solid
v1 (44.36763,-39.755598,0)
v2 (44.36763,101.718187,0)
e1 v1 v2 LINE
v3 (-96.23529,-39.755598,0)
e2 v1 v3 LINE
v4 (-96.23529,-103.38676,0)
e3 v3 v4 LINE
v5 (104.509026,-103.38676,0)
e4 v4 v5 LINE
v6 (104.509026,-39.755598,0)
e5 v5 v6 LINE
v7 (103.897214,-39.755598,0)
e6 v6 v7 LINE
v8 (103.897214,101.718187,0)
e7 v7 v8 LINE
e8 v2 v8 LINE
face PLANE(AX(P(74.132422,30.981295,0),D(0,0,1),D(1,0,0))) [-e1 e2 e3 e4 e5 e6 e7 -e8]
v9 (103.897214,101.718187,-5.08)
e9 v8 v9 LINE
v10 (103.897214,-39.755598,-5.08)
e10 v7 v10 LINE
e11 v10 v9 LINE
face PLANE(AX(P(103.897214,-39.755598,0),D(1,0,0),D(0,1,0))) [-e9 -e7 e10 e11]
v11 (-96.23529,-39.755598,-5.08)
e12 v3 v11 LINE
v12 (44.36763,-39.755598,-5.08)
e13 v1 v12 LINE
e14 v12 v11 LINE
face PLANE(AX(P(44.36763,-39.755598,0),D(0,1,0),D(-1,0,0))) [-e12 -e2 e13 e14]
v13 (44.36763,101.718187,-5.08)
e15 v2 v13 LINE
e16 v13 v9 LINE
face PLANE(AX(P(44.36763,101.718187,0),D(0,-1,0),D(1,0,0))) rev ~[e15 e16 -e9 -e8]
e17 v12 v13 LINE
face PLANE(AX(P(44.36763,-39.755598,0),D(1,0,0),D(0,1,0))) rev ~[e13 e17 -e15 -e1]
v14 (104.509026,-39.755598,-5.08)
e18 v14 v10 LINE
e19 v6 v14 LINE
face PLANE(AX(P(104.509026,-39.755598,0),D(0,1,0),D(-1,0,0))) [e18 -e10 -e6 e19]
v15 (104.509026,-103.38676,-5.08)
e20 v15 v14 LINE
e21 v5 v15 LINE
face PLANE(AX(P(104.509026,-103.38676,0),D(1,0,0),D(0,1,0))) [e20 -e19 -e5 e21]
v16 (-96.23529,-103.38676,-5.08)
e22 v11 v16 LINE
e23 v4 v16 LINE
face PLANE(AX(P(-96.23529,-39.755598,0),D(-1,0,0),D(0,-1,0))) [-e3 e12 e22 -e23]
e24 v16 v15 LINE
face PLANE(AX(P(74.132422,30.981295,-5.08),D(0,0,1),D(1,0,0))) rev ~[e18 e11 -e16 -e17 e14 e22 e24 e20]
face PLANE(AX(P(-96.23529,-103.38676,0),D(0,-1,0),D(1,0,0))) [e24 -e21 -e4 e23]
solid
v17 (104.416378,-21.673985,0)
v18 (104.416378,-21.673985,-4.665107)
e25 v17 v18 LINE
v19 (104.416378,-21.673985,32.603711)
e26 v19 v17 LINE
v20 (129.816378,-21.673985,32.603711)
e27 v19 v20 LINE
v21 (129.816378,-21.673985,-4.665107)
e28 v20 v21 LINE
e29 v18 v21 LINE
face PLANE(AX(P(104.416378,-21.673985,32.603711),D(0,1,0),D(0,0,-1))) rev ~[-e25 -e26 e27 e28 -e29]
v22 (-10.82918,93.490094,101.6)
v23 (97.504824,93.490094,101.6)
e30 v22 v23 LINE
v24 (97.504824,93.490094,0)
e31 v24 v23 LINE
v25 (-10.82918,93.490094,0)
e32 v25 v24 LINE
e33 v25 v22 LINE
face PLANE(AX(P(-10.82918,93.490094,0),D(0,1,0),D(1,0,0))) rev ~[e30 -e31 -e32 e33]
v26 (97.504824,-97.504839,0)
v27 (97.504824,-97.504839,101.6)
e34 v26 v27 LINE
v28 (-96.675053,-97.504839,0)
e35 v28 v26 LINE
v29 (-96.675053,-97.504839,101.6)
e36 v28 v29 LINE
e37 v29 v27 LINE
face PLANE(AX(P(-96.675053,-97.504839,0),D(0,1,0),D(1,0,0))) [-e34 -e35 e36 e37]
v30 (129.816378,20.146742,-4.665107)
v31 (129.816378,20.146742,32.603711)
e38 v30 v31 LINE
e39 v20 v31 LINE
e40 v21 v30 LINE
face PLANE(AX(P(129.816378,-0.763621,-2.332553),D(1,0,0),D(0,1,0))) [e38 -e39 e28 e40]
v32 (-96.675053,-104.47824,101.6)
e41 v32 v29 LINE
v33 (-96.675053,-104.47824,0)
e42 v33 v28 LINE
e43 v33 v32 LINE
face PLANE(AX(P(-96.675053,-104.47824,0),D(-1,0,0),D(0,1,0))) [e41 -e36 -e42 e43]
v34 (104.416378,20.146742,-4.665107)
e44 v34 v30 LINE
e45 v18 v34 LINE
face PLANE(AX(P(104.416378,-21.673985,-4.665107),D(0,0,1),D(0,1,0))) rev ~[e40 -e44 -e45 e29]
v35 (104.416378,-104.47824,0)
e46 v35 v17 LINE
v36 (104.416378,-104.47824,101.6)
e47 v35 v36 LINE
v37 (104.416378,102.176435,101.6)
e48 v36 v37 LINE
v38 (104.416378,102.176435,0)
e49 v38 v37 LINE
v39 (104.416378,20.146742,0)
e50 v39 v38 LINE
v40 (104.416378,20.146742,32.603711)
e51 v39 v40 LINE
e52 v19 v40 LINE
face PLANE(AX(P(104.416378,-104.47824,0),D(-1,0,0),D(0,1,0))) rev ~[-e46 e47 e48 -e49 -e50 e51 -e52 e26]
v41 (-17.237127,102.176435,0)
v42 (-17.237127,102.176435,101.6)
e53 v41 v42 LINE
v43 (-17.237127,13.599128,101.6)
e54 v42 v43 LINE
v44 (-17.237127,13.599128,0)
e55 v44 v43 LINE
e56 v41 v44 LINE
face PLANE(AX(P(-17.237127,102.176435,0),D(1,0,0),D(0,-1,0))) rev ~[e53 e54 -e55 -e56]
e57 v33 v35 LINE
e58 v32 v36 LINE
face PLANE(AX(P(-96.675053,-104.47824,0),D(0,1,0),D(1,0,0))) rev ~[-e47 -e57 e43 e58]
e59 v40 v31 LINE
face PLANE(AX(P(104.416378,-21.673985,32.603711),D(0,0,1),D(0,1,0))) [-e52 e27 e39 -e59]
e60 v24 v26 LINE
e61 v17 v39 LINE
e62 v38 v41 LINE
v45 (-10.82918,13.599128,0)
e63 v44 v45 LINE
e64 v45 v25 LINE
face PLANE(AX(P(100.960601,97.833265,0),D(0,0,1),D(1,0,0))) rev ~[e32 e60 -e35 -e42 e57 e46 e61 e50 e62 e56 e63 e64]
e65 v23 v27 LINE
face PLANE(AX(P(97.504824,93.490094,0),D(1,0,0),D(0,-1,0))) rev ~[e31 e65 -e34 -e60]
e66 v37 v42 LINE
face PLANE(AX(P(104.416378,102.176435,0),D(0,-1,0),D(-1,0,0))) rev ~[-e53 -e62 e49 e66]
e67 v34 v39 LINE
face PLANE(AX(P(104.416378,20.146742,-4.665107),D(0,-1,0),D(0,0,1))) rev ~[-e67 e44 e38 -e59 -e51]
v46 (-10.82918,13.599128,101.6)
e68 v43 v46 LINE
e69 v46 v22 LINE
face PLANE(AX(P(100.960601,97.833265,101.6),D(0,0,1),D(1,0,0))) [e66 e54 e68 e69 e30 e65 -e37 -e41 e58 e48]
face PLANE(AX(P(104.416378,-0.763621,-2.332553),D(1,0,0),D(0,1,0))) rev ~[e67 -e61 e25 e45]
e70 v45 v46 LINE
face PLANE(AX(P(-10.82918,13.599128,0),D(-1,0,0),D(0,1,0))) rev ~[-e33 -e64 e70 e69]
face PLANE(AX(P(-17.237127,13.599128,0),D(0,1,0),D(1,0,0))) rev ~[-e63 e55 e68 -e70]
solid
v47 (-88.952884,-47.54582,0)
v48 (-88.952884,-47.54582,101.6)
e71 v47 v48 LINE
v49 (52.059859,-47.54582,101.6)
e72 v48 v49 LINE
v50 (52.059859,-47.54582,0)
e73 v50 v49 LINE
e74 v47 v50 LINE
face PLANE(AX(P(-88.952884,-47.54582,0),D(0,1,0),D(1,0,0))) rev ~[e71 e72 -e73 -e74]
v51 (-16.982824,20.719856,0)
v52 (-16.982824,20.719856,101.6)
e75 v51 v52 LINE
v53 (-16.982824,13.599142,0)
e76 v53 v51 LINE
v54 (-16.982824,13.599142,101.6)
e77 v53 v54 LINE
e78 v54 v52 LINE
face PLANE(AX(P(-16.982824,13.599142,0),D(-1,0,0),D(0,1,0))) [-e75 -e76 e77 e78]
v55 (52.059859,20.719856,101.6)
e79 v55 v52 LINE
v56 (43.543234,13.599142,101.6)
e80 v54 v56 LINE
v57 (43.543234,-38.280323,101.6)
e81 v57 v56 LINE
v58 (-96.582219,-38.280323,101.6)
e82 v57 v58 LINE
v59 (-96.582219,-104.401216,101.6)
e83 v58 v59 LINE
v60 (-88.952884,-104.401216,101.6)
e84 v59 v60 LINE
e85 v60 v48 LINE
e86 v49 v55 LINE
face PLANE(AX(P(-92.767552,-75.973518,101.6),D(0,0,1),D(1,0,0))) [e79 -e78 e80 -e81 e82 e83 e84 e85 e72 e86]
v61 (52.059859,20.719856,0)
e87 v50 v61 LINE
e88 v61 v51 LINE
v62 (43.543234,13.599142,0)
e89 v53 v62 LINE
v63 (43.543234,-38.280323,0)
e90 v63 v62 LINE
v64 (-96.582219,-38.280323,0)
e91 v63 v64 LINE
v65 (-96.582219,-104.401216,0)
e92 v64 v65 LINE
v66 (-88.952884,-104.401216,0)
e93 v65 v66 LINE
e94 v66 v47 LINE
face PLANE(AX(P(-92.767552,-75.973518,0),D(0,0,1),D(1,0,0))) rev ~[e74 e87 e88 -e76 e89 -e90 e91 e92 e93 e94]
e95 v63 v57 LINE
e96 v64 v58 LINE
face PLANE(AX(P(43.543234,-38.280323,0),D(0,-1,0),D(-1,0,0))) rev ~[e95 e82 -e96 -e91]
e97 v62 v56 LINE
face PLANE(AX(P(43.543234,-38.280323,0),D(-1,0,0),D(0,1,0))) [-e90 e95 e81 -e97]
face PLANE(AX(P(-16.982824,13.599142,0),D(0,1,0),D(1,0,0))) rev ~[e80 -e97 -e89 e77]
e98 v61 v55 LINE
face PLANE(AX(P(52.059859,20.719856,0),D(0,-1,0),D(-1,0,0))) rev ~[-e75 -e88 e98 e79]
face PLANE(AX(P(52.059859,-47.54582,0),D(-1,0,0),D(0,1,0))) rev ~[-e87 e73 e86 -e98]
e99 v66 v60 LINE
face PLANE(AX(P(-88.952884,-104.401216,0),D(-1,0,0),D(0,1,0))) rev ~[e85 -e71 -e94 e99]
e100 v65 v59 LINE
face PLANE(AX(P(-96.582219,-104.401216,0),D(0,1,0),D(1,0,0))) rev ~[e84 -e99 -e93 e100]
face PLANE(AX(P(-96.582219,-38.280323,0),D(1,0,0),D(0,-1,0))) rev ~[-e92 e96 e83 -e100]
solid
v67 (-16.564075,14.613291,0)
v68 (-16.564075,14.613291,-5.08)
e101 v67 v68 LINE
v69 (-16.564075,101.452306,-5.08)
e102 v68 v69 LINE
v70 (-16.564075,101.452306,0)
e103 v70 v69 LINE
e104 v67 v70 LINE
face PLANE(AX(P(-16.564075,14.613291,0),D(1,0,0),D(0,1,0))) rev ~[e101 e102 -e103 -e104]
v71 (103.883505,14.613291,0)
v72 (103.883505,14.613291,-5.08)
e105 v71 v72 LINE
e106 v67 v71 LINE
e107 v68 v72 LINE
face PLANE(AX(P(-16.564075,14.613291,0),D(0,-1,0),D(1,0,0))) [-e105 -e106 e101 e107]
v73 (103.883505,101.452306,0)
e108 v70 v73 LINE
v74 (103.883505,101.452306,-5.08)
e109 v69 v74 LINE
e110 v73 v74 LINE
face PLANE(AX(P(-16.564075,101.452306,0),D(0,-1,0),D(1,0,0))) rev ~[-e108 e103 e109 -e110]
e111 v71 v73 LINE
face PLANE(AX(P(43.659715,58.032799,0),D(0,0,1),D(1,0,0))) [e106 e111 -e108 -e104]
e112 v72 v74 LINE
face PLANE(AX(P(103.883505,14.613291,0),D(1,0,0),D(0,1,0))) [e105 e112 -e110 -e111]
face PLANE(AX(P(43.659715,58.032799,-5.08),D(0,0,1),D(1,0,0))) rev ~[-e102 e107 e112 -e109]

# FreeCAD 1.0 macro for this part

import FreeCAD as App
import Part
import Sketcher
from FreeCAD import Vector
Q = App.Units.Quantity

doc = App.newDocument("Part")
params = doc.addObject("Spreadsheet::Sheet", "Params")
for row, (alias, value) in enumerate([
    ("pad1_length", "4 in"),
    ("pad2_length", "1 in"),
    ("pad3_length", "4 in"),
    ("pad4_length", "0.2 in"),
    ("pad5_length", "0.2 in"),
], start=1):
    params.set(f"A{row}", alias)
    params.set(f"B{row}", "=" + value)
    params.setAlias(f"B{row}", alias)

body = doc.addObject("PartDesign::Body", "Body")

# Sketch on XY plane
sketch1 = body.newObject("Sketcher::SketchObject", "Sketch")
sketch1.AttachmentSupport = (doc.getObject("XY_Plane"), [""])
sketch1.MapMode = "FlatFace"
sketch1.addGeometry(Part.LineSegment(Vector(104, -104, 0), Vector(104, 102, 0)), False)
sketch1.addGeometry(Part.LineSegment(Vector(104, 102, 0), Vector(-17, 102, 0)), False)
sketch1.addGeometry(Part.LineSegment(Vector(-17, 102, 0), Vector(-17, 14, 0)), False)
sketch1.addGeometry(Part.LineSegment(Vector(-17, 14, 0), Vector(-11, 14, 0)), False)
sketch1.addGeometry(Part.LineSegment(Vector(-11, 14, 0), Vector(-11, 93, 0)), False)
sketch1.addGeometry(Part.LineSegment(Vector(-11, 93, 0), Vector(98, 93, 0)), False)
sketch1.addGeometry(Part.LineSegment(Vector(98, 93, 0), Vector(98, -98, 0)), False)
sketch1.addGeometry(Part.LineSegment(Vector(98, -98, 0), Vector(-97, -98, 0)), False)
sketch1.addGeometry(Part.LineSegment(Vector(-97, -98, 0), Vector(-97, -104, 0)), False)
sketch1.addGeometry(Part.LineSegment(Vector(-97, -104, 0), Vector(104, -104, 0)), False)
sketch1.addConstraint(Sketcher.Constraint("Coincident", 0, 2, 1, 1))
sketch1.addConstraint(Sketcher.Constraint("Coincident", 1, 2, 2, 1))
sketch1.addConstraint(Sketcher.Constraint("Coincident", 2, 2, 3, 1))
sketch1.addConstraint(Sketcher.Constraint("Coincident", 3, 2, 4, 1))
sketch1.addConstraint(Sketcher.Constraint("Coincident", 4, 2, 5, 1))
sketch1.addConstraint(Sketcher.Constraint("Coincident", 5, 2, 6, 1))
sketch1.addConstraint(Sketcher.Constraint("Coincident", 6, 2, 7, 1))
sketch1.addConstraint(Sketcher.Constraint("Coincident", 7, 2, 8, 1))
sketch1.addConstraint(Sketcher.Constraint("Coincident", 8, 2, 9, 1))
sketch1.addConstraint(Sketcher.Constraint("Coincident", 9, 2, 0, 1))
sketch1.addConstraint(Sketcher.Constraint("Vertical", 0))
sketch1.addConstraint(Sketcher.Constraint("Horizontal", 1))
sketch1.addConstraint(Sketcher.Constraint("Vertical", 2))
sketch1.addConstraint(Sketcher.Constraint("Horizontal", 3))
sketch1.addConstraint(Sketcher.Constraint("Vertical", 4))
sketch1.addConstraint(Sketcher.Constraint("Horizontal", 5))
sketch1.addConstraint(Sketcher.Constraint("Vertical", 6))
sketch1.addConstraint(Sketcher.Constraint("Horizontal", 7))
sketch1.addConstraint(Sketcher.Constraint("Vertical", 8))
sketch1.addConstraint(Sketcher.Constraint("Horizontal", 9))
sketch1.addConstraint(Sketcher.Constraint("DistanceY", 8, 2, 8, 1, Q("6.973401 mm")))
sketch1.addConstraint(Sketcher.Constraint("DistanceX", 9, 1, 9, 2, Q("201.091431 mm")))
sketch1.addConstraint(Sketcher.Constraint("DistanceX", 1, 2, 1, 1, Q("121.653505 mm")))
sketch1.addConstraint(Sketcher.Constraint("DistanceX", 3, 1, 3, 2, Q("6.407946 mm")))
sketch1.addConstraint(Sketcher.Constraint("DistanceX", 5, 1, 5, 2, Q("108.334005 mm")))
sketch1.addConstraint(Sketcher.Constraint("DistanceY", 0, 1, 0, 2, Q("206.654675 mm")))
sketch1.addConstraint(Sketcher.Constraint("DistanceY", 2, 2, 2, 1, Q("88.577308 mm")))
sketch1.addConstraint(Sketcher.Constraint("DistanceY", 4, 1, 4, 2, Q("79.890966 mm")))
sketch1.addConstraint(Sketcher.Constraint("DistanceX", 3, 2, -1, 1, Q("10.82918 mm")))
sketch1.addConstraint(Sketcher.Constraint("DistanceY", 6, 2, -1, 1, Q("97.504839 mm")))
pad1 = body.newObject("PartDesign::Pad", "Pad")
pad1.Profile = sketch1
pad1.setExpression("Length", "Params.pad1_length")

# Sketch on YZ plane
sketch2 = body.newObject("Sketcher::SketchObject", "Sketch001")
sketch2.AttachmentSupport = (doc.getObject("YZ_Plane"), [""])
sketch2.MapMode = "FlatFace"
sketch2.AttachmentOffset = App.Placement(Vector(0, 0, 104.416378), App.Rotation())
sketch2.addGeometry(Part.LineSegment(Vector(-22, -5, 0), Vector(20, -5, 0)), False)
sketch2.addGeometry(Part.LineSegment(Vector(20, -5, 0), Vector(20, 33, 0)), False)
sketch2.addGeometry(Part.LineSegment(Vector(20, 33, 0), Vector(-22, 33, 0)), False)
sketch2.addGeometry(Part.LineSegment(Vector(-22, 33, 0), Vector(-22, -5, 0)), False)
sketch2.addConstraint(Sketcher.Constraint("Coincident", 0, 2, 1, 1))
sketch2.addConstraint(Sketcher.Constraint("Coincident", 1, 2, 2, 1))
sketch2.addConstraint(Sketcher.Constraint("Coincident", 2, 2, 3, 1))
sketch2.addConstraint(Sketcher.Constraint("Coincident", 3, 2, 0, 1))
sketch2.addConstraint(Sketcher.Constraint("Horizontal", 0))
sketch2.addConstraint(Sketcher.Constraint("Vertical", 1))
sketch2.addConstraint(Sketcher.Constraint("Horizontal", 2))
sketch2.addConstraint(Sketcher.Constraint("Vertical", 3))
sketch2.addConstraint(Sketcher.Constraint("DistanceX", 0, 1, 0, 2, Q("41.820727 mm")))
sketch2.addConstraint(Sketcher.Constraint("DistanceY", 1, 1, 1, 2, Q("37.268817 mm")))
sketch2.addConstraint(Sketcher.Constraint("DistanceY", -1, 1, 1, 2, Q("32.603711 mm")))
sketch2.addConstraint(Sketcher.Constraint("DistanceX", -1, 1, 0, 2, Q("20.146742 mm")))
pad2 = body.newObject("PartDesign::Pad", "Pad001")
pad2.Profile = sketch2
pad2.setExpression("Length", "Params.pad2_length")
body2 = doc.addObject("PartDesign::Body", "Body001")

# Sketch on XY plane
sketch3 = body2.newObject("Sketcher::SketchObject", "Sketch002")
sketch3.AttachmentSupport = (doc.getObject("XY_Plane001"), [""])
sketch3.MapMode = "FlatFace"
sketch3.addGeometry(Part.LineSegment(Vector(-97, -104, 0), Vector(-89, -104, 0)), False)
sketch3.addGeometry(Part.LineSegment(Vector(-89, -104, 0), Vector(-89, -48, 0)), False)
sketch3.addGeometry(Part.LineSegment(Vector(-89, -48, 0), Vector(52, -48, 0)), False)
sketch3.addGeometry(Part.LineSegment(Vector(52, -48, 0), Vector(52, 21, 0)), False)
sketch3.addGeometry(Part.LineSegment(Vector(52, 21, 0), Vector(-17, 21, 0)), False)
sketch3.addGeometry(Part.LineSegment(Vector(-17, 21, 0), Vector(-17, 14, 0)), False)
sketch3.addGeometry(Part.LineSegment(Vector(-17, 14, 0), Vector(44, 14, 0)), False)
sketch3.addGeometry(Part.LineSegment(Vector(44, 14, 0), Vector(44, -38, 0)), False)
sketch3.addGeometry(Part.LineSegment(Vector(44, -38, 0), Vector(-97, -38, 0)), False)
sketch3.addGeometry(Part.LineSegment(Vector(-97, -38, 0), Vector(-97, -104, 0)), False)
sketch3.addConstraint(Sketcher.Constraint("Coincident", 0, 2, 1, 1))
sketch3.addConstraint(Sketcher.Constraint("Coincident", 1, 2, 2, 1))
sketch3.addConstraint(Sketcher.Constraint("Coincident", 2, 2, 3, 1))
sketch3.addConstraint(Sketcher.Constraint("Coincident", 3, 2, 4, 1))
sketch3.addConstraint(Sketcher.Constraint("Coincident", 4, 2, 5, 1))
sketch3.addConstraint(Sketcher.Constraint("Coincident", 5, 2, 6, 1))
sketch3.addConstraint(Sketcher.Constraint("Coincident", 6, 2, 7, 1))
sketch3.addConstraint(Sketcher.Constraint("Coincident", 7, 2, 8, 1))
sketch3.addConstraint(Sketcher.Constraint("Coincident", 8, 2, 9, 1))
sketch3.addConstraint(Sketcher.Constraint("Coincident", 9, 2, 0, 1))
sketch3.addConstraint(Sketcher.Constraint("Horizontal", 0))
sketch3.addConstraint(Sketcher.Constraint("Vertical", 1))
sketch3.addConstraint(Sketcher.Constraint("Horizontal", 2))
sketch3.addConstraint(Sketcher.Constraint("Vertical", 3))
sketch3.addConstraint(Sketcher.Constraint("Horizontal", 4))
sketch3.addConstraint(Sketcher.Constraint("Vertical", 5))
sketch3.addConstraint(Sketcher.Constraint("Horizontal", 6))
sketch3.addConstraint(Sketcher.Constraint("Vertical", 7))
sketch3.addConstraint(Sketcher.Constraint("Horizontal", 8))
sketch3.addConstraint(Sketcher.Constraint("Vertical", 9))
sketch3.addConstraint(Sketcher.Constraint("DistanceX", 6, 2, 3, 2, Q("0.3353002 in")))
sketch3.addConstraint(Sketcher.Constraint("DistanceX", 6, 1, 6, 2, Q("60.526058 mm")))
sketch3.addConstraint(Sketcher.Constraint("DistanceX", 0, 1, 0, 2, Q("7.629335 mm")))
sketch3.addConstraint(Sketcher.Constraint("DistanceX", 2, 1, 2, 2, Q("141.012743 mm")))
sketch3.addConstraint(Sketcher.Constraint("DistanceY", 1, 1, 1, 2, Q("56.855395 mm")))
sketch3.addConstraint(Sketcher.Constraint("DistanceY", 3, 1, 3, 2, Q("68.265676 mm")))
sketch3.addConstraint(Sketcher.Constraint("DistanceY", 5, 2, 5, 1, Q("7.120714 mm")))
sketch3.addConstraint(Sketcher.Constraint("DistanceY", 7, 2, 7, 1, Q("51.879466 mm")))
sketch3.addConstraint(Sketcher.Constraint("DistanceY", 1, 2, -1, 1, Q("47.54582 mm")))
sketch3.addConstraint(Sketcher.Constraint("DistanceX", -1, 1, 2, 2, Q("52.059859 mm")))
pad3 = body2.newObject("PartDesign::Pad", "Pad002")
pad3.Profile = sketch3
pad3.setExpression("Length", "Params.pad3_length")
body3 = doc.addObject("PartDesign::Body", "Body002")

# Sketch on XY plane
sketch4 = body3.newObject("Sketcher::SketchObject", "Sketch003")
sketch4.AttachmentSupport = (doc.getObject("XY_Plane002"), [""])
sketch4.MapMode = "FlatFace"
sketch4.addGeometry(Part.LineSegment(Vector(44.4, 101.7, 0), Vector(44.4, -39.8, 0)), False)
sketch4.addGeometry(Part.LineSegment(Vector(44.4, -39.8, 0), Vector(-96.2, -39.8, 0)), False)
sketch4.addGeometry(Part.LineSegment(Vector(-96.2, -39.8, 0), Vector(-96.2, -103.4, 0)), False)
sketch4.addGeometry(Part.LineSegment(Vector(-96.2, -103.4, 0), Vector(104.5, -103.4, 0)), False)
sketch4.addGeometry(Part.LineSegment(Vector(104.5, -103.4, 0), Vector(104.5, -39.8, 0)), False)
sketch4.addGeometry(Part.LineSegment(Vector(104.5, -39.8, 0), Vector(103.9, -39.8, 0)), False)
sketch4.addGeometry(Part.LineSegment(Vector(103.9, -39.8, 0), Vector(103.9, 101.7, 0)), False)
sketch4.addGeometry(Part.LineSegment(Vector(103.9, 101.7, 0), Vector(44.4, 101.7, 0)), False)
sketch4.addConstraint(Sketcher.Constraint("Coincident", 0, 2, 1, 1))
sketch4.addConstraint(Sketcher.Constraint("Coincident", 1, 2, 2, 1))
sketch4.addConstraint(Sketcher.Constraint("Coincident", 2, 2, 3, 1))
sketch4.addConstraint(Sketcher.Constraint("Coincident", 3, 2, 4, 1))
sketch4.addConstraint(Sketcher.Constraint("Coincident", 4, 2, 5, 1))
sketch4.addConstraint(Sketcher.Constraint("Coincident", 5, 2, 6, 1))
sketch4.addConstraint(Sketcher.Constraint("Coincident", 6, 2, 7, 1))
sketch4.addConstraint(Sketcher.Constraint("Coincident", 7, 2, 0, 1))
sketch4.addConstraint(Sketcher.Constraint("Vertical", 0))
sketch4.addConstraint(Sketcher.Constraint("Horizontal", 1))
sketch4.addConstraint(Sketcher.Constraint("Vertical", 2))
sketch4.addConstraint(Sketcher.Constraint("Horizontal", 3))
sketch4.addConstraint(Sketcher.Constraint("Vertical", 4))
sketch4.addConstraint(Sketcher.Constraint("Horizontal", 5))
sketch4.addConstraint(Sketcher.Constraint("Vertical", 6))
sketch4.addConstraint(Sketcher.Constraint("Horizontal", 7))
sketch4.addConstraint(Sketcher.Constraint("Horizontal", 1, 2, 4, 2))
sketch4.addConstraint(Sketcher.Constraint("DistanceX", 1, 2, 1, 1, Q("140.60292 mm")))
sketch4.addConstraint(Sketcher.Constraint("DistanceX", 5, 2, 5, 1, Q("0.611812 mm")))
sketch4.addConstraint(Sketcher.Constraint("DistanceX", 3, 1, 3, 2, Q("200.744316 mm")))
sketch4.addConstraint(Sketcher.Constraint("DistanceY", 0, 2, 0, 1, Q("141.473785 mm")))
sketch4.addConstraint(Sketcher.Constraint("DistanceY", 2, 2, 2, 1, Q("63.631162 mm")))
sketch4.addConstraint(Sketcher.Constraint("DistanceX", -1, 1, 0, 2, Q("44.36763 mm")))
sketch4.addConstraint(Sketcher.Constraint("DistanceY", 2, 2, -1, 1, Q("103.38676 mm")))
pad4 = body3.newObject("PartDesign::Pad", "Pad003")
pad4.Profile = sketch4
pad4.setExpression("Length", "Params.pad4_length")
pad4.Reversed = True
body4 = doc.addObject("PartDesign::Body", "Body003")

# Sketch on XY plane
sketch5 = body4.newObject("Sketcher::SketchObject", "Sketch004")
sketch5.AttachmentSupport = (doc.getObject("XY_Plane003"), [""])
sketch5.MapMode = "FlatFace"
sketch5.addGeometry(Part.LineSegment(Vector(-17, 101, 0), Vector(-17, 15, 0)), False)
sketch5.addGeometry(Part.LineSegment(Vector(-17, 15, 0), Vector(104, 15, 0)), False)
sketch5.addGeometry(Part.LineSegment(Vector(104, 15, 0), Vector(104, 101, 0)), False)
sketch5.addGeometry(Part.LineSegment(Vector(104, 101, 0), Vector(-17, 101, 0)), False)
sketch5.addConstraint(Sketcher.Constraint("Coincident", 0, 2, 1, 1))
sketch5.addConstraint(Sketcher.Constraint("Coincident", 1, 2, 2, 1))
sketch5.addConstraint(Sketcher.Constraint("Coincident", 2, 2, 3, 1))
sketch5.addConstraint(Sketcher.Constraint("Coincident", 3, 2, 0, 1))
sketch5.addConstraint(Sketcher.Constraint("Vertical", 0))
sketch5.addConstraint(Sketcher.Constraint("Horizontal", 1))
sketch5.addConstraint(Sketcher.Constraint("Vertical", 2))
sketch5.addConstraint(Sketcher.Constraint("Horizontal", 3))
sketch5.addConstraint(Sketcher.Constraint("DistanceX", 1, 1, 1, 2, Q("120.44758 mm")))
sketch5.addConstraint(Sketcher.Constraint("DistanceY", 0, 2, 0, 1, Q("86.839015 mm")))
sketch5.addConstraint(Sketcher.Constraint("DistanceY", -1, 1, 0, 2, Q("14.613291 mm")))
sketch5.addConstraint(Sketcher.Constraint("DistanceX", 0, 2, -1, 1, Q("16.564075 mm")))
pad5 = body4.newObject("PartDesign::Pad", "Pad004")
pad5.Profile = sketch5
pad5.setExpression("Length", "Params.pad5_length")
pad5.Reversed = True

doc.recompute()
